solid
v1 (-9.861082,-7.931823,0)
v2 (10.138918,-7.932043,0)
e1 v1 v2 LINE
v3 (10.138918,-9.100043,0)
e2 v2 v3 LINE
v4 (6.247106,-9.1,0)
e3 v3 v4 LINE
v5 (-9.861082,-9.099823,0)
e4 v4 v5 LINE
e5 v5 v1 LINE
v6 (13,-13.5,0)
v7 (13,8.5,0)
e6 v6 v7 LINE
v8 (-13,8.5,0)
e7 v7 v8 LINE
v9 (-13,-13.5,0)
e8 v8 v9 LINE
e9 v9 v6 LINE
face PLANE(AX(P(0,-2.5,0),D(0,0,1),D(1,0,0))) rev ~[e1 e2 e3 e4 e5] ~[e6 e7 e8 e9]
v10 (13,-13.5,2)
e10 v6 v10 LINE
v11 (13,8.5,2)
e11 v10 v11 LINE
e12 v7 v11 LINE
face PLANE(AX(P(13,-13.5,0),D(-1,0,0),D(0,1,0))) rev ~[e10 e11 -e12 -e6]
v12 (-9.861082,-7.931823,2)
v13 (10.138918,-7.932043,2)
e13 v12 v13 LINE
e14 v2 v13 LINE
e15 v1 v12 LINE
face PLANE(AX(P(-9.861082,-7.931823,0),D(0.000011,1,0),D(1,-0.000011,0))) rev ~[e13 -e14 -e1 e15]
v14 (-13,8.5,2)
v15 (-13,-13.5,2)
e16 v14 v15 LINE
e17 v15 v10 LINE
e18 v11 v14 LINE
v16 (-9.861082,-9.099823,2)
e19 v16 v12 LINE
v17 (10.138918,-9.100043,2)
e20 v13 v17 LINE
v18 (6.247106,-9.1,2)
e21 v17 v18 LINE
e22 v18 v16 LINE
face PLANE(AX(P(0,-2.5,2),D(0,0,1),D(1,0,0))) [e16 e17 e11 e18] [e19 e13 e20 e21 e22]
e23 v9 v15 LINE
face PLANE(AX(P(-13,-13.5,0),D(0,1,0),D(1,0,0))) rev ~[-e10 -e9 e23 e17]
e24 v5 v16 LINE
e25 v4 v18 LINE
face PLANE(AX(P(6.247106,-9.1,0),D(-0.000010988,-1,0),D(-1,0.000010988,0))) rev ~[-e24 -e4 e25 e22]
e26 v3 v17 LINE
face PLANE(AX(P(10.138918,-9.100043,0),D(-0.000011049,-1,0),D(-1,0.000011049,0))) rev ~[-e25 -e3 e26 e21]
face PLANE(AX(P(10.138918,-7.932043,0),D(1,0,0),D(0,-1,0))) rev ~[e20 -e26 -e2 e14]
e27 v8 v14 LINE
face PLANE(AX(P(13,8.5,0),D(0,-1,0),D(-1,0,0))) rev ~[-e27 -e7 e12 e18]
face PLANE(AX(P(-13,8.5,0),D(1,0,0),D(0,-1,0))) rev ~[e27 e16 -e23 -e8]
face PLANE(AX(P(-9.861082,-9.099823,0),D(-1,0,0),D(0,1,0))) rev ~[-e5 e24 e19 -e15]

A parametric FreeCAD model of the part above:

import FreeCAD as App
import Part
import Sketcher
from FreeCAD import Vector
Q = App.Units.Quantity


def add_polygon(sketch, points):
    """Adds a closed chain of lines whose ends are joined by coincident constraints."""
    first, n = sketch.GeometryCount, len(points)
    for a, b in zip(points, points[1:] + points[:1]):
        sketch.addGeometry(Part.LineSegment(App.Vector(*a, 0), App.Vector(*b, 0)), False)
    for i in range(n):
        sketch.addConstraint(Sketcher.Constraint("Coincident", first + i, 2, first + (i + 1) % n, 1))

doc = App.newDocument("Part")
params = doc.addObject("Spreadsheet::Sheet", "Params")
for row, (alias, value) in enumerate([
    ("sketch1_width", "26 mm"),
    ("sketch1_height", "22 mm"),
    ("sketch1_length", "20 mm"),
    ("pad1_length", "2 mm"),
], start=1):
    params.set(f"A{row}", alias)
    params.set(f"B{row}", "=" + value)
    params.setAlias(f"B{row}", alias)

body = doc.addObject("PartDesign::Body", "Body")

# Sketch on XY plane
sketch1 = body.newObject("Sketcher::SketchObject", "Sketch")
sketch1.AttachmentSupport = (doc.getObject("XY_Plane"), [""])
sketch1.MapMode = "FlatFace"
add_polygon(sketch1, [(13, 8.5), (-13, 8.5), (-13, -13.5), (13, -13.5)])  # lines 0-3
add_polygon(sketch1, [(10.1, -7.9), (10.1, -9.1), (6.2, -9.1), (-9.9, -9.1), (-9.9, -7.9)])  # lines 4-8
sketch1.addConstraint(Sketcher.Constraint("Horizontal", 0))
sketch1.addConstraint(Sketcher.Constraint("Vertical", 1))
sketch1.addConstraint(Sketcher.Constraint("Horizontal", 2))
sketch1.addConstraint(Sketcher.Constraint("Vertical", 3))
sketch1.addConstraint(Sketcher.Constraint("Vertical", 4))
sketch1.addConstraint(Sketcher.Constraint("Vertical", 7))
sketch1.addConstraint(Sketcher.Constraint("Parallel", 5, 6))
sketch1.addConstraint(Sketcher.Constraint("Parallel", 6, 8))
sketch1.addConstraint(Sketcher.Constraint("DistanceX", 0, 2, 0, 1, Q("26 mm")))
sketch1.addConstraint(Sketcher.Constraint("DistanceY", 1, 2, 1, 1, Q("22 mm")))
sketch1.addConstraint(Sketcher.Constraint("Distance", 8, Q("20 mm")))
sketch1.addConstraint(Sketcher.Constraint("DistanceX", 0, 2, -1, 1, Q("13 mm")))
sketch1.addConstraint(Sketcher.Constraint("DistanceY", -1, 1, 0, 2, Q("8.5 mm")))
sketch1.addConstraint(Sketcher.Constraint("DistanceY", 5, 2, -1, 1, Q("9.1 mm")))
sketch1.addConstraint(Sketcher.Constraint("DistanceY", 4, 2, 4, 1, Q("1.168 mm")))
sketch1.addConstraint(Sketcher.Constraint("Distance", 6, Q("16.108188 mm")))
sketch1.addConstraint(Sketcher.Constraint("DistanceX", 4, 2, 2, 2, Q("2.861082 mm")))
sketch1.addConstraint(Sketcher.Constraint("DistanceY", 4, 2, 6, 2, Q("0.00022 mm")))
sketch1.setExpression("Constraints[17]", "Params.sketch1_width")
sketch1.setExpression("Constraints[18]", "Params.sketch1_height")
sketch1.setExpression("Constraints[19]", "Params.sketch1_length")
pad1 = body.newObject("PartDesign::Pad", "Pad")
pad1.Profile = sketch1
pad1.setExpression("Length", "Params.pad1_length")

doc.recompute()
